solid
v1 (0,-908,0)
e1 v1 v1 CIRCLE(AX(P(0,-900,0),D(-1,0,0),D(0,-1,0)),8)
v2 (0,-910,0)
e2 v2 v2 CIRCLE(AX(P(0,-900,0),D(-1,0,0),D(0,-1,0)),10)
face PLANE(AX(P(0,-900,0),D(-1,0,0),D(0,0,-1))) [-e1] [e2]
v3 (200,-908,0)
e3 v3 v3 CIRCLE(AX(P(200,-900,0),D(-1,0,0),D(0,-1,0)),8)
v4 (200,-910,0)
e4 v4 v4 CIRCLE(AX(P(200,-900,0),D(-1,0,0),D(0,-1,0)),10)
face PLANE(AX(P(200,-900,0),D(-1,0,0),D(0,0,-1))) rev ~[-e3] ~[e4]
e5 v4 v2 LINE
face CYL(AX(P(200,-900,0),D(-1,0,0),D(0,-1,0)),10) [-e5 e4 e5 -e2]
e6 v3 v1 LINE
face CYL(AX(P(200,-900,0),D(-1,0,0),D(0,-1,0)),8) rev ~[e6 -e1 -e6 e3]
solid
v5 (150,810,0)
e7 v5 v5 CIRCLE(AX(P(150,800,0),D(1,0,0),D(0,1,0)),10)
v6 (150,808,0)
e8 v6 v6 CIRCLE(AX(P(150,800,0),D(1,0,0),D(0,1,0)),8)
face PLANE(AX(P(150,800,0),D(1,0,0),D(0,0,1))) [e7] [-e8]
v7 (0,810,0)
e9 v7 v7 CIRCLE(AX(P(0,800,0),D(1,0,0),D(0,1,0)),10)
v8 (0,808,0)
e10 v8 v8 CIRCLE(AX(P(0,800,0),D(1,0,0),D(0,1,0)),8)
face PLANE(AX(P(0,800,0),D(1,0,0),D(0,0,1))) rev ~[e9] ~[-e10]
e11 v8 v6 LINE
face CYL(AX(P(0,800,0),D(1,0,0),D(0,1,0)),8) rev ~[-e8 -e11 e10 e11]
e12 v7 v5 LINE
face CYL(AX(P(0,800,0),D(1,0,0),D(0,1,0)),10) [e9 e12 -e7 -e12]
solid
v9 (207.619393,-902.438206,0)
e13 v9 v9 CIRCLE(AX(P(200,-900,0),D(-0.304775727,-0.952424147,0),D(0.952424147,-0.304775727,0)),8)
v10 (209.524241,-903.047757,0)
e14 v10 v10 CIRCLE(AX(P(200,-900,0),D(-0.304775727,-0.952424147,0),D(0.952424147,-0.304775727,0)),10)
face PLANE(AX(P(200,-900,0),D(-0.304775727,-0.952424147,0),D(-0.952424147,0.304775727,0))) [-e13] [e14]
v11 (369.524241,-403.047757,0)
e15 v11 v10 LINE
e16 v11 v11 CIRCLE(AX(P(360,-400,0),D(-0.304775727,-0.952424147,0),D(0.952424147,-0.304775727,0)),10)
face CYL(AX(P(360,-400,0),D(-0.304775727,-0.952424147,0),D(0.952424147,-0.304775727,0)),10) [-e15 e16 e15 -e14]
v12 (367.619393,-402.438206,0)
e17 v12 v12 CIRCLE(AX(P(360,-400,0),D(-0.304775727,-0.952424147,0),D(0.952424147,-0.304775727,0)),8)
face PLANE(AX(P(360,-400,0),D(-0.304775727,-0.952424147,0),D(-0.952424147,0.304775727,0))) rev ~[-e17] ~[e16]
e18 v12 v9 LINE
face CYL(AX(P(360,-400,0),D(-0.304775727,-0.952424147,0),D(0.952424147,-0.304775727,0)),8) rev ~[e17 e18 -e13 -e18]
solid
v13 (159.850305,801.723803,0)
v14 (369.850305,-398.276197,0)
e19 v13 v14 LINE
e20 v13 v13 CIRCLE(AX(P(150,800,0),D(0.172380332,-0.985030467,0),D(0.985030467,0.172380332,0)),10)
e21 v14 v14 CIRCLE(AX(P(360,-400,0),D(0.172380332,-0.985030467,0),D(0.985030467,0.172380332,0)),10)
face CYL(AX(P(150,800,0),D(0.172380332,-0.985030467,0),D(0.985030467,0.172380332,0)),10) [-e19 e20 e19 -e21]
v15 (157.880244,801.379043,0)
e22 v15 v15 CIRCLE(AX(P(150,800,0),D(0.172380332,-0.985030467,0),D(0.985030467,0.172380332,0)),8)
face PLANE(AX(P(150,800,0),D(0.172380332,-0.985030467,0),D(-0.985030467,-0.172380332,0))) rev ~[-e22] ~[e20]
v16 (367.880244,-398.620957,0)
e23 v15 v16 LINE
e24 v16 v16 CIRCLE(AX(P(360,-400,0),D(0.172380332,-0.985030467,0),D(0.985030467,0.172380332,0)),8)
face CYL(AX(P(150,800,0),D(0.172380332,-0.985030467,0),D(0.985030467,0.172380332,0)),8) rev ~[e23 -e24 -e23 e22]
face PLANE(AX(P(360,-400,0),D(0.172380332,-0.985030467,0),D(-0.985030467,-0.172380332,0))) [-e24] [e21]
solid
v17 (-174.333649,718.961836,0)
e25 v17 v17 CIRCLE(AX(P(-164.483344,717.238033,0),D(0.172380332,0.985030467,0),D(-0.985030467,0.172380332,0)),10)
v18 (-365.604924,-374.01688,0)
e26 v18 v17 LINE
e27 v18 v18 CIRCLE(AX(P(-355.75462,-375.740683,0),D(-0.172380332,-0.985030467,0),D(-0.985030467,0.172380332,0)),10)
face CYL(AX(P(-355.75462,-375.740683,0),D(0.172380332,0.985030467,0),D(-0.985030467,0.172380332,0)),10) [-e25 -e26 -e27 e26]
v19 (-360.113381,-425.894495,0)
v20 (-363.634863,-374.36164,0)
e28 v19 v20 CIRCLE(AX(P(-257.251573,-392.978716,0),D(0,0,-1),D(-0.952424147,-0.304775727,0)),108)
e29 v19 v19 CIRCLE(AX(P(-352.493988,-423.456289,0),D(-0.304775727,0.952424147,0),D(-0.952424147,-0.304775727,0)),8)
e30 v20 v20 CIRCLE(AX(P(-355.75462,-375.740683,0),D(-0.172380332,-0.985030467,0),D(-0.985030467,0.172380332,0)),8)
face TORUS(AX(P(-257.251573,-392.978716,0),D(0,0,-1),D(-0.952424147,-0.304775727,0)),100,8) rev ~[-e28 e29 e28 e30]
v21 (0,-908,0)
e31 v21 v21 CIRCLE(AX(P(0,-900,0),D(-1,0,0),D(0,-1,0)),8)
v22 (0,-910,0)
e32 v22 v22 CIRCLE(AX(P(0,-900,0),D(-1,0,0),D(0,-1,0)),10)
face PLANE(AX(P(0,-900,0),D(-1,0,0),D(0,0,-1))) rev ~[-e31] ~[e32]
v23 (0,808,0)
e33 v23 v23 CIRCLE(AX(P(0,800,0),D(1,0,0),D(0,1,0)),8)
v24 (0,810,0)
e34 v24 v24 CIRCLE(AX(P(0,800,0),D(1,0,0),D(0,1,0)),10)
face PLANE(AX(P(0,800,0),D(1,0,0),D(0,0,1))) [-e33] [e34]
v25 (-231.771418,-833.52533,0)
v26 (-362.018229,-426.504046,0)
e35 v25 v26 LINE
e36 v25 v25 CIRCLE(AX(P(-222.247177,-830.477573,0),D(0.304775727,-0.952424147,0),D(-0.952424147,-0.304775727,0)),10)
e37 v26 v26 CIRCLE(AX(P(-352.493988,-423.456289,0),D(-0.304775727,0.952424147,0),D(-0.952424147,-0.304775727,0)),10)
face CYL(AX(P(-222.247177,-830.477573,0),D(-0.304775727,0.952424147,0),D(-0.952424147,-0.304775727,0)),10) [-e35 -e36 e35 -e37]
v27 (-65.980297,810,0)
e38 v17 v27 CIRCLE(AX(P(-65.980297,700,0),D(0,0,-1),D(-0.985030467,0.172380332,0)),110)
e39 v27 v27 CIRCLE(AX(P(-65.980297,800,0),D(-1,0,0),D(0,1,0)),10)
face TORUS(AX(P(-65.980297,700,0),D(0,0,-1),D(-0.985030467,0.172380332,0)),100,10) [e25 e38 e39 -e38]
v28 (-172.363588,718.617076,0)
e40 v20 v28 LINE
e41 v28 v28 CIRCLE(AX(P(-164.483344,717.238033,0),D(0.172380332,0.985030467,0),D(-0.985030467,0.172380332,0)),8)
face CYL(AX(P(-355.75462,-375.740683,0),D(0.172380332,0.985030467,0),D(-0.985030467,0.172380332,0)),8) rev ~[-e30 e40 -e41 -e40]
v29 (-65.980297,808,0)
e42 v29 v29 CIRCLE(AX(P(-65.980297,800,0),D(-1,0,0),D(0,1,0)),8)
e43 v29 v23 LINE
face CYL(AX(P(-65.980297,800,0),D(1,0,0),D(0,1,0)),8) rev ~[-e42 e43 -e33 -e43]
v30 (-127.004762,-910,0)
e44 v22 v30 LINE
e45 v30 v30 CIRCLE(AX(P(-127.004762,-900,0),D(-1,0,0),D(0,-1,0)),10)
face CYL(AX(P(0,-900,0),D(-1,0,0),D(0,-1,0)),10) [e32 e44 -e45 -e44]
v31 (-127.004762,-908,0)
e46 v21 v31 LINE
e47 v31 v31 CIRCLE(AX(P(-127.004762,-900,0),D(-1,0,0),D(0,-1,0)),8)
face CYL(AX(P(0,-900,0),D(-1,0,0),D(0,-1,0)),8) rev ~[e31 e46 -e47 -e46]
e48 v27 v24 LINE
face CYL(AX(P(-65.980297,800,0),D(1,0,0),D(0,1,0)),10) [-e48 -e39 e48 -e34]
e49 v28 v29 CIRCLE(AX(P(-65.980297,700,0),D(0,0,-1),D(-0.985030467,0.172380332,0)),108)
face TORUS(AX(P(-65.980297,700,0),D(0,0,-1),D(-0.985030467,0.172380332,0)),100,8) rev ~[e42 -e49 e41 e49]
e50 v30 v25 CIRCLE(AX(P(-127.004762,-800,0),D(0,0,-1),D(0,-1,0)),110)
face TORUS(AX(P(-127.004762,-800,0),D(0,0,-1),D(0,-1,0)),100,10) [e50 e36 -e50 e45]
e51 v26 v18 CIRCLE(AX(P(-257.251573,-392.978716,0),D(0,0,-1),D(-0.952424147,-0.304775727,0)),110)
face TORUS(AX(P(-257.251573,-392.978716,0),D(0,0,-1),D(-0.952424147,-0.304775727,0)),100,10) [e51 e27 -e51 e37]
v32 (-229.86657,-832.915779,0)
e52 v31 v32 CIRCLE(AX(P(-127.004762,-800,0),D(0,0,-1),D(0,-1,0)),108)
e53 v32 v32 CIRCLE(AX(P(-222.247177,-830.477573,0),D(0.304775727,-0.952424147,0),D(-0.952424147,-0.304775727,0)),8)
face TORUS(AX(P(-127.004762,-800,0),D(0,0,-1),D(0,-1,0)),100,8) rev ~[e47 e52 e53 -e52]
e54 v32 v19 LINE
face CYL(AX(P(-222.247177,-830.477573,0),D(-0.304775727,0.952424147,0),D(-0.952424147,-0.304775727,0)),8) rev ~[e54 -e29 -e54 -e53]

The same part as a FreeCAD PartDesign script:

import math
import FreeCAD as App
import Part
import Sketcher

doc = App.newDocument("Part")
body = doc.addObject("PartDesign::Body", "Body")

sketch1 = doc.addObject("Sketcher::SketchObject", "Sketch")
body.addObject(sketch1)
sketch1.Placement = App.Placement(App.Vector(78.617344, -449.241965, 0), App.Rotation(App.Vector(0.985030467, 0.172380332, 0), App.Vector(0, 0, 1), App.Vector(0.172380332, -0.985030467, 0), "ZXY"))
sketch1.addGeometry([
    Part.Circle(App.Vector(286, 0, 0), App.Vector(0, 0, 1), 10),
    Part.Circle(App.Vector(286, 0, 0), App.Vector(0, 0, 1), 8),
], False)
sketch1.addConstraint([
    Sketcher.Constraint("Coincident", 1, 3, 0, 3),
    Sketcher.Constraint("PointOnObject", 0, 3, -1),
    Sketcher.Constraint("Diameter", 0, 20.0),
    Sketcher.Constraint("Diameter", 1, 16.0),
    Sketcher.Constraint("DistanceX", -1, 1, 0, 3, 285.658835),
])

sketch2 = doc.addObject("Sketcher::SketchObject", "Sketch001")
body.addObject(sketch2)
sketch2.Placement = App.Placement(App.Vector(281.382656, 49.241965, 0), App.Rotation(App.Vector(0.172380332, -0.985030467, 0), App.Vector(0, 0, 1), App.Vector(-0.985030467, -0.172380332, 0), "ZXY"))
sketch2.addGeometry(Part.LineSegment(App.Vector(-762, 0, 0), App.Vector(456, 0, 0)), False)
sketch2.addConstraint([
    Sketcher.Constraint("Horizontal", 0),
    Sketcher.Constraint("PointOnObject", 0, 1, -1),
    Sketcher.Constraint("DistanceX", 0, 1, 0, 2, 1218.23643),
    Sketcher.Constraint("DistanceX", 0, 1, -1, 1, 762.167324),
])
doc.recompute()

additivepipe = doc.addObject("PartDesign::AdditivePipe", "AdditivePipe")
body.addObject(additivepipe)
additivepipe.Profile = sketch1
additivepipe.Spine = (sketch2, ["Edge1"])
body2 = doc.addObject("PartDesign::Body", "Body001")

sketch3 = doc.addObject("Sketcher::SketchObject", "Sketch002")
body2.addObject(sketch3)
sketch3.Placement = App.Placement(App.Vector(-242.670537, -758.345428, 0), App.Rotation(App.Vector(0.952424147, -0.304775727, 0), App.Vector(0, 0, 1), App.Vector(-0.304775727, -0.952424147, 0), "ZXY"))
sketch3.addGeometry([
    Part.Circle(App.Vector(465, 0, 0), App.Vector(0, 0, 1), 10),
    Part.Circle(App.Vector(465, 0, 0), App.Vector(0, 0, 1), 8),
], False)
sketch3.addConstraint([
    Sketcher.Constraint("Coincident", 1, 3, 0, 3),
    Sketcher.Constraint("PointOnObject", 0, 3, -1),
    Sketcher.Constraint("Diameter", 0, 20.0),
    Sketcher.Constraint("Diameter", 1, 16.0),
    Sketcher.Constraint("DistanceX", -1, 1, 0, 3, 464.782984),
])

sketch4 = doc.addObject("Sketcher::SketchObject", "Sketch003")
body2.addObject(sketch4)
sketch4.Placement = App.Placement(App.Vector(442.670537, -141.654572, 0), App.Rotation(App.Vector(-0.304775727, -0.952424147, 0), App.Vector(0, 0, 1), App.Vector(-0.952424147, 0.304775727, 0), "ZXY"))
sketch4.addGeometry(Part.LineSegment(App.Vector(271, 0, 0), App.Vector(796, 0, 0)), False)
sketch4.addConstraint([
    Sketcher.Constraint("Horizontal", 0),
    Sketcher.Constraint("PointOnObject", 0, 1, -1),
    Sketcher.Constraint("DistanceX", 0, 1, 0, 2, 524.97619),
    Sketcher.Constraint("DistanceX", -1, 1, 0, 1, 271.250397),
])
doc.recompute()

additivepipe2 = doc.addObject("PartDesign::AdditivePipe", "AdditivePipe001")
body2.addObject(additivepipe2)
additivepipe2.Profile = sketch3
additivepipe2.Spine = (sketch4, ["Edge1"])
body3 = doc.addObject("PartDesign::Body", "Body002")

sketch5 = doc.addObject("Sketcher::SketchObject", "Sketch004")
body3.addObject(sketch5)
sketch5.AttachmentSupport = (doc.getObject("YZ_Plane002"), [""])
sketch5.MapMode = "FlatFace"
sketch5.addGeometry([
    Part.Circle(App.Vector(-900, 0, 0), App.Vector(0, 0, 1), 10),
    Part.Circle(App.Vector(-900, 0, 0), App.Vector(0, 0, 1), 8),
], False)
sketch5.addConstraint([
    Sketcher.Constraint("Coincident", 1, 3, 0, 3),
    Sketcher.Constraint("PointOnObject", 0, 3, -1),
    Sketcher.Constraint("Diameter", 0, 20.0),
    Sketcher.Constraint("Diameter", 1, 16.0),
    Sketcher.Constraint("DistanceX", 0, 3, -1, 1, 900.0),
])

sketch6 = doc.addObject("Sketcher::SketchObject", "Sketch005")
body3.addObject(sketch6)
sketch6.AttachmentSupport = (doc.getObject("XY_Plane002"), [""])
sketch6.MapMode = "FlatFace"
sketch6.addGeometry(Part.LineSegment(App.Vector(200, -900, 0), App.Vector(0, -900, 0)), False)
sketch6.addConstraint([
    Sketcher.Constraint("Horizontal", 0),
    Sketcher.Constraint("PointOnObject", 0, 2, -2),
    Sketcher.Constraint("DistanceX", 0, 2, 0, 1, 200.0),
    Sketcher.Constraint("DistanceY", 0, 1, -1, 1, 900.0),
])
doc.recompute()

additivepipe3 = doc.addObject("PartDesign::AdditivePipe", "AdditivePipe002")
body3.addObject(additivepipe3)
additivepipe3.Profile = sketch5
additivepipe3.Spine = (sketch6, ["Edge1"])
body4 = doc.addObject("PartDesign::Body", "Body003")

sketch7 = doc.addObject("Sketcher::SketchObject", "Sketch006")
body4.addObject(sketch7)
sketch7.AttachmentSupport = (doc.getObject("YZ_Plane003"), [""])
sketch7.MapMode = "FlatFace"
sketch7.addGeometry([
    Part.Circle(App.Vector(800, 0, 0), App.Vector(0, 0, 1), 10),
    Part.Circle(App.Vector(800, 0, 0), App.Vector(0, 0, 1), 8),
], False)
sketch7.addConstraint([
    Sketcher.Constraint("Coincident", 1, 3, 0, 3),
    Sketcher.Constraint("PointOnObject", 0, 3, -1),
    Sketcher.Constraint("Diameter", 0, 20.0),
    Sketcher.Constraint("Diameter", 1, 16.0),
    Sketcher.Constraint("DistanceX", -1, 1, 0, 3, 800.0),
])

sketch8 = doc.addObject("Sketcher::SketchObject", "Sketch007")
body4.addObject(sketch8)
sketch8.AttachmentSupport = (doc.getObject("XY_Plane003"), [""])
sketch8.MapMode = "FlatFace"
sketch8.addGeometry(Part.LineSegment(App.Vector(0, 800, 0), App.Vector(150, 800, 0)), False)
sketch8.addConstraint([
    Sketcher.Constraint("Horizontal", 0),
    Sketcher.Constraint("PointOnObject", 0, 1, -2),
    Sketcher.Constraint("DistanceX", 0, 1, 0, 2, 150.0),
    Sketcher.Constraint("DistanceY", -1, 1, 0, 1, 800.0),
])
doc.recompute()

additivepipe4 = doc.addObject("PartDesign::AdditivePipe", "AdditivePipe003")
body4.addObject(additivepipe4)
additivepipe4.Profile = sketch7
additivepipe4.Spine = (sketch8, ["Edge1"])
body5 = doc.addObject("PartDesign::Body", "Body004")

sketch9 = doc.addObject("Sketcher::SketchObject", "Sketch008")
body5.addObject(sketch9)
sketch9.AttachmentSupport = (doc.getObject("YZ_Plane004"), [""])
sketch9.MapMode = "FlatFace"
sketch9.addGeometry([
    Part.Circle(App.Vector(-900, 0, 0), App.Vector(0, 0, 1), 10),
    Part.Circle(App.Vector(-900, 0, 0), App.Vector(0, 0, 1), 8),
], False)
sketch9.addConstraint([
    Sketcher.Constraint("Coincident", 1, 3, 0, 3),
    Sketcher.Constraint("PointOnObject", 0, 3, -1),
    Sketcher.Constraint("Diameter", 0, 20.0),
    Sketcher.Constraint("Diameter", 1, 16.0),
    Sketcher.Constraint("DistanceX", 0, 3, -1, 1, 900.0),
])

sketch10 = doc.addObject("Sketcher::SketchObject", "Sketch009")
body5.addObject(sketch10)
sketch10.AttachmentSupport = (doc.getObject("XY_Plane004"), [""])
sketch10.MapMode = "FlatFace"
sketch10.addGeometry([
    Part.LineSegment(App.Vector(0, -900, 0), App.Vector(-127.004762, -900, 0)),
    Part.ArcOfCircle(Part.Circle(App.Vector(-127.004762, -800, 0), App.Vector(0, 0, 1), 100), math.radians(-162.255328), math.radians(-90)),
    Part.LineSegment(App.Vector(-222.247177, -830.477573, 0), App.Vector(-352.493988, -423.456289, 0)),
    Part.ArcOfCircle(Part.Circle(App.Vector(-257.251573, -392.978716, 0), App.Vector(0, 0, 1), 100), math.radians(170.073754), math.radians(197.744672)),
    Part.LineSegment(App.Vector(-355.75462, -375.740683, 0), App.Vector(-164.483344, 717.238033, 0)),
    Part.ArcOfCircle(Part.Circle(App.Vector(-65.980297, 700, 0), App.Vector(0, 0, 1), 100), math.radians(90), math.radians(170.073754)),
    Part.LineSegment(App.Vector(-65.980297, 800, 0), App.Vector(0, 800, 0)),
], False)
sketch10.addConstraint([
    Sketcher.Constraint("Tangent", 0, 2, 1, 2),
    Sketcher.Constraint("Tangent", 1, 1, 2, 1),
    Sketcher.Constraint("Tangent", 2, 2, 3, 2),
    Sketcher.Constraint("Tangent", 3, 1, 4, 1),
    Sketcher.Constraint("Tangent", 4, 2, 5, 2),
    Sketcher.Constraint("Tangent", 5, 1, 6, 1),
    Sketcher.Constraint("Horizontal", 0),
    Sketcher.Constraint("Horizontal", 6),
    Sketcher.Constraint("Equal", 1, 3),
    Sketcher.Constraint("Equal", 3, 5),
    Sketcher.Constraint("PointOnObject", 0, 1, -2),
    Sketcher.Constraint("PointOnObject", 6, 2, -2),
    Sketcher.Constraint("Radius", 1, 100.0),
    Sketcher.Constraint("DistanceY", 1, 3, -1, 1, 800.0),
    Sketcher.Constraint("DistanceY", -1, 1, 5, 3, 700.0),
    Sketcher.Constraint("Distance", 4, 1109.588741),
    Sketcher.Constraint("DistanceX", 0, 2, 0, 1, 127.004762),
    Sketcher.Constraint("DistanceX", 6, 1, 6, 2, 65.980297),
    Sketcher.Constraint("DistanceY", 2, 2, -1, 1, 423.456289),
])
doc.recompute()

additivepipe5 = doc.addObject("PartDesign::AdditivePipe", "AdditivePipe004")
body5.addObject(additivepipe5)
additivepipe5.Profile = sketch9
additivepipe5.Spine = (sketch10, ["Edge1", "Edge2", "Edge3", "Edge4", "Edge5", "Edge6", "Edge7"])

doc.recompute()
